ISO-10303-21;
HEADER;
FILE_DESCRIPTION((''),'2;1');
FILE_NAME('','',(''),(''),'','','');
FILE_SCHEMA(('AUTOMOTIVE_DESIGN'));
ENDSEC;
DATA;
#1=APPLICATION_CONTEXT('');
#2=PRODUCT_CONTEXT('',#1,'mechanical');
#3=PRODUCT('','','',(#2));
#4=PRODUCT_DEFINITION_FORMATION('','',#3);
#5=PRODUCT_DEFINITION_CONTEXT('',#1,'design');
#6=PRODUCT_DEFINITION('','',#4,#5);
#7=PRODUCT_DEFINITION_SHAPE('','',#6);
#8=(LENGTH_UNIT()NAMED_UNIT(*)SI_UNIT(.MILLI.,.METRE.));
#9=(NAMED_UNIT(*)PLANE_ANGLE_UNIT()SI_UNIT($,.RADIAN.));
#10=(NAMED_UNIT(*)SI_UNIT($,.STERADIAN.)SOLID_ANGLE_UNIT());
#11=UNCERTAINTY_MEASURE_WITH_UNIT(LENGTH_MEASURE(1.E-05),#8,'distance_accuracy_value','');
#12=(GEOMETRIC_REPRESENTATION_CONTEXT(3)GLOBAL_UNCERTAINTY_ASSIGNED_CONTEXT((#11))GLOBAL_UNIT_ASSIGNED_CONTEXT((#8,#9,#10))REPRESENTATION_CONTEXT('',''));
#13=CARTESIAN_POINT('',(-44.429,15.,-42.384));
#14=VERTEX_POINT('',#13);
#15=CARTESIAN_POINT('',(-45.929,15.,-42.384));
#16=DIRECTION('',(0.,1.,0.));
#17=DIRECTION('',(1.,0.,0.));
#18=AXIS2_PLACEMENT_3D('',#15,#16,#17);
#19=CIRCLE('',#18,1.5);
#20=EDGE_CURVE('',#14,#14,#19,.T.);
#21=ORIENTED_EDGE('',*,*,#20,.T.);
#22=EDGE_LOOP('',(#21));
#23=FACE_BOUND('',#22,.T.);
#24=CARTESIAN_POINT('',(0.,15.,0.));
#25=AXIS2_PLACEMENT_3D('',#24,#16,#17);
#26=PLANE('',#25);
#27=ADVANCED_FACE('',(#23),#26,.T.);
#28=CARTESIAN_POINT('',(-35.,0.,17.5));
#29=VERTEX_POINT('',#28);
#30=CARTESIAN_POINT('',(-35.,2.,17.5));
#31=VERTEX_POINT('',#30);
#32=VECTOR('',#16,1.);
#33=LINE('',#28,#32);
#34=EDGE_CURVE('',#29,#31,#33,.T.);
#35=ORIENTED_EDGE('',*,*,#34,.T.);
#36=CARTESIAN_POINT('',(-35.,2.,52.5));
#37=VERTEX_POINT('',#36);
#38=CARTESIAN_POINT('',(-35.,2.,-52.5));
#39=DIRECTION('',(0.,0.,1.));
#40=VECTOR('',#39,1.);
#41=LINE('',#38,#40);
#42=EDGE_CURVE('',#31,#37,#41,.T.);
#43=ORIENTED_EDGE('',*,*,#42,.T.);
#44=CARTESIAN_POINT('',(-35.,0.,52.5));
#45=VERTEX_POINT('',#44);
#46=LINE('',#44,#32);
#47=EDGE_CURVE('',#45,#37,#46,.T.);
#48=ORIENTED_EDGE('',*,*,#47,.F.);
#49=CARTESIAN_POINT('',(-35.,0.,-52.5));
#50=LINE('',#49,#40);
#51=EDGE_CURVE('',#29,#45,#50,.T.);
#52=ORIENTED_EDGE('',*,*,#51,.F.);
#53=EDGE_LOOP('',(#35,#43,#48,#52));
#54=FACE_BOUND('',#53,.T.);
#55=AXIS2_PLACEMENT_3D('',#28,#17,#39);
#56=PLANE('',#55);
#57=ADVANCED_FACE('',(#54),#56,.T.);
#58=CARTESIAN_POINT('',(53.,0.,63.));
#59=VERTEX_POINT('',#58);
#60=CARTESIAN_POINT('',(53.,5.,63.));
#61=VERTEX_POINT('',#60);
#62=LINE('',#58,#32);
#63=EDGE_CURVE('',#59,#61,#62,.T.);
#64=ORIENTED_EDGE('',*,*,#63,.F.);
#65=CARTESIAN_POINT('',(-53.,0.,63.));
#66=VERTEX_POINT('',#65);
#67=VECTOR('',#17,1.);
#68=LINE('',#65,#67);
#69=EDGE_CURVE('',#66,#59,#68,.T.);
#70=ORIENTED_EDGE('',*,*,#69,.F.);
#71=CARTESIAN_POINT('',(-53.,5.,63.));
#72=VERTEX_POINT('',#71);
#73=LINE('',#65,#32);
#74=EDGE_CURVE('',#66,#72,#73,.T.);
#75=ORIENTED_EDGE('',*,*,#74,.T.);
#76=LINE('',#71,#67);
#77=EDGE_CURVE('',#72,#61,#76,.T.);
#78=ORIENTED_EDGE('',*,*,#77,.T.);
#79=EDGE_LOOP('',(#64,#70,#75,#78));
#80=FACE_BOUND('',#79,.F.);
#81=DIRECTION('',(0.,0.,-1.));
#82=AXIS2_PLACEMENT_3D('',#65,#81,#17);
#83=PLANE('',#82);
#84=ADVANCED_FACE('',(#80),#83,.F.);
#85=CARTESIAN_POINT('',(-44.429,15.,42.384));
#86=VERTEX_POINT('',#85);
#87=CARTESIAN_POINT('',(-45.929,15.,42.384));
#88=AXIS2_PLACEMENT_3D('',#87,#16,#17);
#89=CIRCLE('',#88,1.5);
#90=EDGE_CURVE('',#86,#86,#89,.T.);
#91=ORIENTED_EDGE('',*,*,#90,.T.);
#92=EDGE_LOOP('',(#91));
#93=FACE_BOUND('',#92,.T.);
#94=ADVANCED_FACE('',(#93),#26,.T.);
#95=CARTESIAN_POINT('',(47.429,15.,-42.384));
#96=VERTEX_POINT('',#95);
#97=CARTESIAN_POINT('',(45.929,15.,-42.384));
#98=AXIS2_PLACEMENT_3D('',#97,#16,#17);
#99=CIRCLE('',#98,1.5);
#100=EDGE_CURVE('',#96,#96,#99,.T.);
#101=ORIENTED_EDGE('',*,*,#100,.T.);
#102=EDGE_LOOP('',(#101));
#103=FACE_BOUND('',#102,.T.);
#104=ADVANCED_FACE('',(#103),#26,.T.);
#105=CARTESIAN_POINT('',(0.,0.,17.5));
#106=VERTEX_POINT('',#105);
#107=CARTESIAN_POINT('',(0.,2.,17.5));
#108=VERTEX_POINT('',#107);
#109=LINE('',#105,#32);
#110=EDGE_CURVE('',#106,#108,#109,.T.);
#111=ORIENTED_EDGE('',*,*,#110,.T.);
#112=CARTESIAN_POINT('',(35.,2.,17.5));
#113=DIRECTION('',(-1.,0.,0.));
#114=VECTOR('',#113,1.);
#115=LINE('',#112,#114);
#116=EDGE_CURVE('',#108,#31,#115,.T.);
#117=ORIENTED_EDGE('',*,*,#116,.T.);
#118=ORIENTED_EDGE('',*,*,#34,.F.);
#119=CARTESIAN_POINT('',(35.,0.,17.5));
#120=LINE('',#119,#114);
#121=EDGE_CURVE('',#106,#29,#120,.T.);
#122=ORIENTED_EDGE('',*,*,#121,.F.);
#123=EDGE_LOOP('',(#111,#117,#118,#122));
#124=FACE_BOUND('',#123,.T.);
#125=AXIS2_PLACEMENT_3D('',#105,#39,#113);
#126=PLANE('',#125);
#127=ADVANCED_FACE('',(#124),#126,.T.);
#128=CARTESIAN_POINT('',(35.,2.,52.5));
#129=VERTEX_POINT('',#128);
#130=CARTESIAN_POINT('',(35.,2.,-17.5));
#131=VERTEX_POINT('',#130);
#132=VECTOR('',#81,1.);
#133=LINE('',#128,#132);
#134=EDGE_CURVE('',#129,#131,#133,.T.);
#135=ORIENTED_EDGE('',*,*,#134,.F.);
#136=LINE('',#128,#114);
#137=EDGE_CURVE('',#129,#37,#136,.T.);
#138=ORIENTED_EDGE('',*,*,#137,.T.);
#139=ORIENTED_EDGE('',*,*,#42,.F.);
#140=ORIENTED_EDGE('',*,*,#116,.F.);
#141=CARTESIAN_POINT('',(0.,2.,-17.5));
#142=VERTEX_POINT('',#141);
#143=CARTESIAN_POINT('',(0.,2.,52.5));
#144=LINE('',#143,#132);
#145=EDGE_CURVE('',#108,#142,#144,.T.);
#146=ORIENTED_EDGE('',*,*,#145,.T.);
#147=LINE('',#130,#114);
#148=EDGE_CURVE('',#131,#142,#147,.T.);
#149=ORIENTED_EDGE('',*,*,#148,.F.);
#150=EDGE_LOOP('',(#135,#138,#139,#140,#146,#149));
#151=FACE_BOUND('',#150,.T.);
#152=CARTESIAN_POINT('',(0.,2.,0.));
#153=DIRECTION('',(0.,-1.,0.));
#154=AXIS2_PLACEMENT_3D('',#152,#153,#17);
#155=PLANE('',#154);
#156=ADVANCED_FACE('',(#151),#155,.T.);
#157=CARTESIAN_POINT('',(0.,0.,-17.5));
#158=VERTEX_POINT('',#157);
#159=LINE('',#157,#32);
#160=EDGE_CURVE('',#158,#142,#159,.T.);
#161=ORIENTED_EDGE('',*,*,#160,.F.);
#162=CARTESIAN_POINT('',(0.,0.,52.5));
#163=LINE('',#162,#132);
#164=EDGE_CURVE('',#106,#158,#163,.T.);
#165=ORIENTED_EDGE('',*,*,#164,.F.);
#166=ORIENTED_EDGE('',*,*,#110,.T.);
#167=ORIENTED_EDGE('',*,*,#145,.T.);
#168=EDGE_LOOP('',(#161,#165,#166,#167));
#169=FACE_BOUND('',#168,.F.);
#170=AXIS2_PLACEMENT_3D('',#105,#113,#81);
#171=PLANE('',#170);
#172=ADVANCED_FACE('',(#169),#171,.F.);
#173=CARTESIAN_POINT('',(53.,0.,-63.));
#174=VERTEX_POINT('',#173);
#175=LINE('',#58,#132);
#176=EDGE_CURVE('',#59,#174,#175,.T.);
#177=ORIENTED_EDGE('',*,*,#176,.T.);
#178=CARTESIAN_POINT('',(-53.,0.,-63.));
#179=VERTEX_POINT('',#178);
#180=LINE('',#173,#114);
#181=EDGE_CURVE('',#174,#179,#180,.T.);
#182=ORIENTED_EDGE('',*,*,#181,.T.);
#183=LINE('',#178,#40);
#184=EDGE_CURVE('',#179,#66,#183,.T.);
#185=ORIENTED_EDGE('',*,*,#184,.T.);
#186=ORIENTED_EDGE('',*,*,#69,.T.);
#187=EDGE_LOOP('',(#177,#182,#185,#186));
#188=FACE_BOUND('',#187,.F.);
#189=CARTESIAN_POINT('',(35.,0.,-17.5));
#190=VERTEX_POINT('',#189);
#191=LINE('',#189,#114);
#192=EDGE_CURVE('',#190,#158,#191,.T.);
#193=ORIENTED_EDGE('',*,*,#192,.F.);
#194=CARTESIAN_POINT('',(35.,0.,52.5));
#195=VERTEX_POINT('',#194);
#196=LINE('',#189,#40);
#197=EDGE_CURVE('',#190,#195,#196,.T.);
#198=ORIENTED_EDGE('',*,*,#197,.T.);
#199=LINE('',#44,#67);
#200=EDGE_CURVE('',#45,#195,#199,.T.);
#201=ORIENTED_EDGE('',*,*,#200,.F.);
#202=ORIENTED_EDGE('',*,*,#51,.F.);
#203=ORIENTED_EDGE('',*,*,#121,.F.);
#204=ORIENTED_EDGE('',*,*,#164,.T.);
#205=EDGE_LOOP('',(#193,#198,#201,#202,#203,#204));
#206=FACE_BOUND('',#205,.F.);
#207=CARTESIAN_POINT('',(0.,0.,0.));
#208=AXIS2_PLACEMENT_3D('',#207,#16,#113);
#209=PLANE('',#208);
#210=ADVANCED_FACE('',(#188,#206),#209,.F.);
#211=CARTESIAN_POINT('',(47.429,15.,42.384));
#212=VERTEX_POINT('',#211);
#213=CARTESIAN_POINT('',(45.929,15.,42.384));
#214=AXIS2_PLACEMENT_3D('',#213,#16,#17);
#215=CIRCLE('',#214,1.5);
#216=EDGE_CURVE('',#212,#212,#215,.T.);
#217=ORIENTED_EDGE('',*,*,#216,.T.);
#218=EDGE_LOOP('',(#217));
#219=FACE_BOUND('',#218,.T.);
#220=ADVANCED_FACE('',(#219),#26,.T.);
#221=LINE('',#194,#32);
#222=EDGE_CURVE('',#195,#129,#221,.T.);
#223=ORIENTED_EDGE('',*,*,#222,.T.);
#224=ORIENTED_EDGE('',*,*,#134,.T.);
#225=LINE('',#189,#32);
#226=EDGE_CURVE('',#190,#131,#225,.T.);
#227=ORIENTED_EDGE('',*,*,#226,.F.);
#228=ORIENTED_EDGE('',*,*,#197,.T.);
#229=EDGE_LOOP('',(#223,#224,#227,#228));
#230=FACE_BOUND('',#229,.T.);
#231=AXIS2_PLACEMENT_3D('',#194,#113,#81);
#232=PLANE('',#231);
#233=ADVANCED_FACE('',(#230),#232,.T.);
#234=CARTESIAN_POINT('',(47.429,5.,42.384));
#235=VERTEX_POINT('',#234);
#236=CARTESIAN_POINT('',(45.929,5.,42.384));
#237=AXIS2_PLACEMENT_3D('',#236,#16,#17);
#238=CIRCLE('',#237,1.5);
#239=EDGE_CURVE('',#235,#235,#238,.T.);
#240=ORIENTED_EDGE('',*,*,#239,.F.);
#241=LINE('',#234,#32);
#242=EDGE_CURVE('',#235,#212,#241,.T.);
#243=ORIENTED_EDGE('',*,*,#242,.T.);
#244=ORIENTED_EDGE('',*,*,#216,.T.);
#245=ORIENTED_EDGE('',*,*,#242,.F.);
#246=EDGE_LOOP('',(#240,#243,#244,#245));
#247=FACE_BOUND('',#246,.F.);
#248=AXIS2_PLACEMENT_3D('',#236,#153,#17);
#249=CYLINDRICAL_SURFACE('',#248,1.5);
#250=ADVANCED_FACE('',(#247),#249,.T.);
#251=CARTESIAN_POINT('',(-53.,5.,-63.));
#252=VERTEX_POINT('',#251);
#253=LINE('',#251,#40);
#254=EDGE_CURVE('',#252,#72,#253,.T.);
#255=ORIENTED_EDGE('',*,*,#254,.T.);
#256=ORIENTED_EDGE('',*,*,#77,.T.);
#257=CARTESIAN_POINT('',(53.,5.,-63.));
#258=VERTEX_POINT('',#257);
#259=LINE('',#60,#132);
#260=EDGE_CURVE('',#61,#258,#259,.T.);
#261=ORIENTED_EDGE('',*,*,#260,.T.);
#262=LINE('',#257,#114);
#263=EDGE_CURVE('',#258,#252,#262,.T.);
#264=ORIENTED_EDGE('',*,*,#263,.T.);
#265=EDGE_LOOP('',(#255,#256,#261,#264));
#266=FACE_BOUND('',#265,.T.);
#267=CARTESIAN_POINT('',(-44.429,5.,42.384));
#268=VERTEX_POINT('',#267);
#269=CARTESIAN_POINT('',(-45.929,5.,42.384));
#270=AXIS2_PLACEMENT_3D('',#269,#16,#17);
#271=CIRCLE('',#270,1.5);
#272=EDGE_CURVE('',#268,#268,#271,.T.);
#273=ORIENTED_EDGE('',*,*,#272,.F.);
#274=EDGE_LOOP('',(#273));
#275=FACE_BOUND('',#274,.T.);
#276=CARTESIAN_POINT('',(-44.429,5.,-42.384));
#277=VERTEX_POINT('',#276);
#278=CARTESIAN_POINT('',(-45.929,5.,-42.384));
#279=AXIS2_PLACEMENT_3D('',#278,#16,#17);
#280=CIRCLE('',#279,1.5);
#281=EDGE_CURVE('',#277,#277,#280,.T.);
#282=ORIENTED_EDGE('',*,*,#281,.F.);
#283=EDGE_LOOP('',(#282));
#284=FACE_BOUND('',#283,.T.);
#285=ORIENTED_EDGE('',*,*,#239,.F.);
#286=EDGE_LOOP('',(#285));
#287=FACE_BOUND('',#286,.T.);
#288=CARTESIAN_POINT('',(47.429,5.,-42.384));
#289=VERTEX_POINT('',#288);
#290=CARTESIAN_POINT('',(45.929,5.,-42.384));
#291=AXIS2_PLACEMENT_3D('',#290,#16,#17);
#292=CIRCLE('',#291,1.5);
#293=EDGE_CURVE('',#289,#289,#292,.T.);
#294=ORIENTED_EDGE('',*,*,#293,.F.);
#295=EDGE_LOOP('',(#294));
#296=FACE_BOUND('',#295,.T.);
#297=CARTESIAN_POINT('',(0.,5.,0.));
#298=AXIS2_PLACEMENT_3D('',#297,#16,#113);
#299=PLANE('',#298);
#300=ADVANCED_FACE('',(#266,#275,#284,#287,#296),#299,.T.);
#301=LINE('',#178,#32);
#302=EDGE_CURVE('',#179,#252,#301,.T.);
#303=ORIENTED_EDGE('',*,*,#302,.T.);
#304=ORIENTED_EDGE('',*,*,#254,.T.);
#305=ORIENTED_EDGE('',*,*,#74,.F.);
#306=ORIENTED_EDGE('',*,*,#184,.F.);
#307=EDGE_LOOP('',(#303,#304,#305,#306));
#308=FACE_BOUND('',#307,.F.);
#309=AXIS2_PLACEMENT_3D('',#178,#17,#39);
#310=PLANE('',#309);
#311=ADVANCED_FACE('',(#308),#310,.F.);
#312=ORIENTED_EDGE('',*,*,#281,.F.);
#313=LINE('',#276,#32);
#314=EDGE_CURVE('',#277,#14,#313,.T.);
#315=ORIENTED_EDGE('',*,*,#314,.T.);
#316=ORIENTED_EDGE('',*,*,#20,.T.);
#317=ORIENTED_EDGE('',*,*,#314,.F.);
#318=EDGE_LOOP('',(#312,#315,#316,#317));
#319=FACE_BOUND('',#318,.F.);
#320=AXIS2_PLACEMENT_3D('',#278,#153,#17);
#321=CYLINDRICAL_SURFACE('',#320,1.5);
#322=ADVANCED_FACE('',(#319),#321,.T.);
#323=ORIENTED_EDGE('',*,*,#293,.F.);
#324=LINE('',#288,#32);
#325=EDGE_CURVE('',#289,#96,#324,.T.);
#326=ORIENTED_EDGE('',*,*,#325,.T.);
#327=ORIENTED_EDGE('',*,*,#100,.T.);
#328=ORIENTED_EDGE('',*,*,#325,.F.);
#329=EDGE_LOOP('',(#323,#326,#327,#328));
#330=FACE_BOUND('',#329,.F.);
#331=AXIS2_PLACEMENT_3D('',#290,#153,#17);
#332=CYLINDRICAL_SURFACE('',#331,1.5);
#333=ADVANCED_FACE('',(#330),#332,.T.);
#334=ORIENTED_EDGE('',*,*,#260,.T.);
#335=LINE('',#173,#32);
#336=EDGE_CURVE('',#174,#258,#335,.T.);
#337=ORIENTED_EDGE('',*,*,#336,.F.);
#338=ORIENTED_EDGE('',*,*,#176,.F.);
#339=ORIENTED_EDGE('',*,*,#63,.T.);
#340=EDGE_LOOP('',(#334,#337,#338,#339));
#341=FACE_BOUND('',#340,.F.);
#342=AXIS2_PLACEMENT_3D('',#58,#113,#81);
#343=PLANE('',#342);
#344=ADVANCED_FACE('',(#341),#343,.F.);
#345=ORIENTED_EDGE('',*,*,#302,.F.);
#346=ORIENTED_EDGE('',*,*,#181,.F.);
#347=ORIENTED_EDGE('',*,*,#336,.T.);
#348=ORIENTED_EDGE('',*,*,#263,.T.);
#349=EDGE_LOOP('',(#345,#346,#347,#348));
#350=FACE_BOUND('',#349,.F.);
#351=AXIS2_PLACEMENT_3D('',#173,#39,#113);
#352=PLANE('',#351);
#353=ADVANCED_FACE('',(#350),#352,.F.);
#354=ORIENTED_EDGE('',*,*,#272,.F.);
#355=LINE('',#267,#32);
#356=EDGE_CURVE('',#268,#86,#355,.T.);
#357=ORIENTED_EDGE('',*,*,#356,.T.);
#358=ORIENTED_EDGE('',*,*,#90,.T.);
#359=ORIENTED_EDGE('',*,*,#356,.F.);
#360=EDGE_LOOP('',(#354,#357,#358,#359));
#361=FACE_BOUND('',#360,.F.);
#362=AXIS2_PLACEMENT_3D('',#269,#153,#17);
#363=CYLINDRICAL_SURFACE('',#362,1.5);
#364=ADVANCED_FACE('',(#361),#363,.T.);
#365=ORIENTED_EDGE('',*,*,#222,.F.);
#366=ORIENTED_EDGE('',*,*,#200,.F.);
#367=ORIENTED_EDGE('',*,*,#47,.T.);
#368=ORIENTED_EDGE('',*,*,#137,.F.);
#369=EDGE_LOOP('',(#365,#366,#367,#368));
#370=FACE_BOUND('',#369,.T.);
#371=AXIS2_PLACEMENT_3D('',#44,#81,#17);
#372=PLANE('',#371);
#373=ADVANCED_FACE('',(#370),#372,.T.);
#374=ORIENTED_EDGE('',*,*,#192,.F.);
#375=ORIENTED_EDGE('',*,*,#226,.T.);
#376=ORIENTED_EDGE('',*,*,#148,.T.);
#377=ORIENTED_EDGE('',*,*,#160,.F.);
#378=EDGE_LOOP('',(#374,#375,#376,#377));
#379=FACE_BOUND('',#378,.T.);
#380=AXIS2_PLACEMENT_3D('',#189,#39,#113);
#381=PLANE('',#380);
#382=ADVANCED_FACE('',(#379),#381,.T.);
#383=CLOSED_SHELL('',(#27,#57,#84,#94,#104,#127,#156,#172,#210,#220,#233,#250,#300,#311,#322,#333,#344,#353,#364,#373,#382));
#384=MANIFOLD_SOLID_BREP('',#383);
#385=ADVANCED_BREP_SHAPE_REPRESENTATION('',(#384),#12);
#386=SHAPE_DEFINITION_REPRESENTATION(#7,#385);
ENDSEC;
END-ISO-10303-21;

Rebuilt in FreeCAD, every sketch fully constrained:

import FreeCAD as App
import Part
import Sketcher


def add_polygon(sketch, points):
    """Adds a closed chain of lines whose ends are joined by coincident constraints."""
    first, n = sketch.GeometryCount, len(points)
    for a, b in zip(points, points[1:] + points[:1]):
        sketch.addGeometry(Part.LineSegment(App.Vector(*a, 0), App.Vector(*b, 0)), False)
    for i in range(n):
        sketch.addConstraint(Sketcher.Constraint("Coincident", first + i, 2, first + (i + 1) % n, 1))

doc = App.newDocument("Part")
params = doc.addObject("Spreadsheet::Sheet", "Params")
for row, (alias, value) in enumerate([
    ("sketch1_width", "106 mm"),
    ("sketch1_height", "126 mm"),
    ("pad1_length", "5 mm"),
    ("sketch2_diameter", "3 mm"),
    ("pad2_length", "10 mm"),
    ("sketch3_width", "35 mm"),
    ("pocket1_length", "2 mm"),
], start=1):
    params.set(f"A{row}", alias)
    params.set(f"B{row}", "=" + value)
    params.setAlias(f"B{row}", alias)

body = doc.addObject("PartDesign::Body", "Body")

# Sketch on XZ plane
sketch1 = doc.addObject("Sketcher::SketchObject", "Sketch")
body.addObject(sketch1)
sketch1.AttachmentSupport = (doc.XZ_Plane, [""])
sketch1.MapMode = "FlatFace"
add_polygon(sketch1, [(-53, -63), (-53, 63), (53, 63), (53, -63)])  # lines 0-3
sketch1.addConstraint(Sketcher.Constraint("Vertical", 0))
sketch1.addConstraint(Sketcher.Constraint("Horizontal", 1))
sketch1.addConstraint(Sketcher.Constraint("Vertical", 2))
sketch1.addConstraint(Sketcher.Constraint("Horizontal", 3))
sketch1.addConstraint(Sketcher.Constraint("Symmetric", 0, 2, 2, 2, -1, 1))
sketch1.addConstraint(Sketcher.Constraint("DistanceX", 1, 1, 1, 2, 106.0))
sketch1.addConstraint(Sketcher.Constraint("DistanceY", 0, 1, 0, 2, 126.0))
sketch1.setExpression("Constraints[9]", "Params.sketch1_width")
sketch1.setExpression("Constraints[10]", "Params.sketch1_height")
pad1 = doc.addObject("PartDesign::Pad", "Pad")
body.addObject(pad1)
pad1.Profile = sketch1
pad1.setExpression("Length", "Params.pad1_length")
pad1.Reversed = True

# Sketch on XZ plane
sketch2 = doc.addObject("Sketcher::SketchObject", "Sketch001")
body.addObject(sketch2)
sketch2.AttachmentSupport = (doc.XZ_Plane, [""])
sketch2.MapMode = "FlatFace"
sketch2.AttachmentOffset = App.Placement(App.Vector(0, 0, -5), App.Rotation())
sketch2.addGeometry(Part.Circle(App.Vector(-45.9, 42.4, 0), App.Vector(0, 0, 1), 1.5), False)
sketch2.addGeometry(Part.Circle(App.Vector(-45.9, -42.4, 0), App.Vector(0, 0, 1), 1.5), False)
sketch2.addGeometry(Part.Circle(App.Vector(45.9, 42.4, 0), App.Vector(0, 0, 1), 1.5), False)
sketch2.addGeometry(Part.Circle(App.Vector(45.9, -42.4, 0), App.Vector(0, 0, 1), 1.5), False)
sketch2.addConstraint(Sketcher.Constraint("Equal", 0, 1))
sketch2.addConstraint(Sketcher.Constraint("Equal", 1, 2))
sketch2.addConstraint(Sketcher.Constraint("Equal", 2, 3))
sketch2.addConstraint(Sketcher.Constraint("Symmetric", 1, 3, 2, 3, -1, 1))
sketch2.addConstraint(Sketcher.Constraint("Symmetric", 0, 3, 3, 3, -1, 1))
sketch2.addConstraint(Sketcher.Constraint("Symmetric", 0, 3, 2, 3, -2))
sketch2.addConstraint(Sketcher.Constraint("Diameter", 0, 3.0))
sketch2.addConstraint(Sketcher.Constraint("DistanceX", 0, 3, -1, 1, 45.929))
sketch2.addConstraint(Sketcher.Constraint("DistanceY", -1, 1, 0, 3, 42.384))
sketch2.setExpression("Constraints[6]", "Params.sketch2_diameter")
pad2 = doc.addObject("PartDesign::Pad", "Pad001")
body.addObject(pad2)
pad2.Profile = sketch2
pad2.setExpression("Length", "Params.pad2_length")
pad2.Reversed = True

# Sketch on XZ plane
sketch3 = doc.addObject("Sketcher::SketchObject", "Sketch002")
body.addObject(sketch3)
sketch3.AttachmentSupport = (doc.XZ_Plane, [""])
sketch3.MapMode = "FlatFace"
add_polygon(sketch3, [(-35, 52), (-35, 18), (0, 18), (0, -18), (35, -18), (35, 52)])  # lines 0-5
sketch3.addConstraint(Sketcher.Constraint("Vertical", 0))
sketch3.addConstraint(Sketcher.Constraint("Horizontal", 1))
sketch3.addConstraint(Sketcher.Constraint("Vertical", 2))
sketch3.addConstraint(Sketcher.Constraint("Horizontal", 3))
sketch3.addConstraint(Sketcher.Constraint("Vertical", 4))
sketch3.addConstraint(Sketcher.Constraint("Horizontal", 5))
sketch3.addConstraint(Sketcher.Constraint("Symmetric", 1, 2, 2, 2, -1, 1))
sketch3.addConstraint(Sketcher.Constraint("Equal", 1, 3))
sketch3.addConstraint(Sketcher.Constraint("Equal", 3, 0))
sketch3.addConstraint(Sketcher.Constraint("Equal", 0, 2))
sketch3.addConstraint(Sketcher.Constraint("DistanceX", 1, 1, 1, 2, 35.0))
sketch3.setExpression("Constraints[16]", "Params.sketch3_width")
pocket1 = doc.addObject("PartDesign::Pocket", "Pocket")
body.addObject(pocket1)
pocket1.Profile = sketch3
pocket1.setExpression("Length", "Params.pocket1_length")

doc.recompute()
